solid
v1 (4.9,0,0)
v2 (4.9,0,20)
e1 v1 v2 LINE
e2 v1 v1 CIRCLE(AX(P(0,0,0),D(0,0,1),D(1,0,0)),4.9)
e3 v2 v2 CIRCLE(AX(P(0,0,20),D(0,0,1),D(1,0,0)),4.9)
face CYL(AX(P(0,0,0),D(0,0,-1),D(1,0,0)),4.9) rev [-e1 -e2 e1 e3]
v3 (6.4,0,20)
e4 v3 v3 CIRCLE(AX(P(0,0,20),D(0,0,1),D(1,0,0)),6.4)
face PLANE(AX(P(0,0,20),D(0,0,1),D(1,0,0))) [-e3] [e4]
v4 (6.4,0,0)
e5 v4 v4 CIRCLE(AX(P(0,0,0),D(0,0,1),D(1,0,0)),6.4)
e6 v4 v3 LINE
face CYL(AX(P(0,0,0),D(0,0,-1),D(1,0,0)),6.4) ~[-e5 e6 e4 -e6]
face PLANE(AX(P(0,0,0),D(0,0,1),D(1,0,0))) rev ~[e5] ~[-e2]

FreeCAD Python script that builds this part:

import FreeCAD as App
import Part
import Sketcher

V = App.Vector
Q = App.Units.Quantity

doc = App.newDocument("Part")
params = doc.addObject("Spreadsheet::Sheet", "Params")
for row, (alias, value) in enumerate([
    ("sketch1_diameter", "12.8 mm"),
    ("sketch1_diameter2", "9.8 mm"),
    ("pad1_length", "20 mm"),
], start=1):
    params.set(f"A{row}", alias)
    params.set(f"B{row}", "=" + value)
    params.setAlias(f"B{row}", alias)

body = doc.addObject("PartDesign::Body", "Body")

# Sketch on XY plane
sketch1 = body.newObject("Sketcher::SketchObject", "Sketch")
sketch1.AttachmentSupport = (doc.getObject("XY_Plane"), [""])
sketch1.MapMode = "FlatFace"
sketch1.addGeometry([
    Part.Circle(V(0, 0, 0), V(0, 0, 1), 6.4),
    Part.Circle(V(0, 0, 0), V(0, 0, 1), 4.9),
], False)
sketch1.addConstraint([
    Sketcher.Constraint("Coincident", 0, 3, -1, 1),
    Sketcher.Constraint("Coincident", 1, 3, -1, 1),
    Sketcher.Constraint("Diameter", 0, Q("12.8 mm")),
    Sketcher.Constraint("Diameter", 1, Q("9.8 mm")),
])
sketch1.setExpression("Constraints[2]", "Params.sketch1_diameter")
sketch1.setExpression("Constraints[3]", "Params.sketch1_diameter2")
pad1 = body.newObject("PartDesign::Pad", "Pad")
pad1.Profile = sketch1
pad1.setExpression("Length", "Params.pad1_length")

doc.recompute()
